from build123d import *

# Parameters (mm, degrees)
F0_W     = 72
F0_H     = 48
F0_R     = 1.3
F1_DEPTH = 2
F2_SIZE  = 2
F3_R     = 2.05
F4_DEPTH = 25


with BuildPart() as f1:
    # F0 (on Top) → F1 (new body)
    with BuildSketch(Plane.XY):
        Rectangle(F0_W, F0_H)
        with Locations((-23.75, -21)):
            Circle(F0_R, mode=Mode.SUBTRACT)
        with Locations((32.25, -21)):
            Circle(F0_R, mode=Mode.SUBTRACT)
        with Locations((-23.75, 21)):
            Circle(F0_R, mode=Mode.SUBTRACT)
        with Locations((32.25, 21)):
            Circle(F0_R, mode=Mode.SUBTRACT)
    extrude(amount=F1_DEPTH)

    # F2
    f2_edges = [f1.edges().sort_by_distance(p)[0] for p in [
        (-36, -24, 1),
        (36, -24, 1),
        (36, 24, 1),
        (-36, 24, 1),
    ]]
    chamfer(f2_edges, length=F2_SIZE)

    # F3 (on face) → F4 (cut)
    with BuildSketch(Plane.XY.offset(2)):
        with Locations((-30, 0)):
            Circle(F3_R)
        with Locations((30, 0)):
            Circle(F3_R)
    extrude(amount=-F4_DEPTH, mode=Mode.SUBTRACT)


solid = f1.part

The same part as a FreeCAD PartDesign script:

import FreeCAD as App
import Part
import Sketcher


def edges_at(feature, points):
    """Names of the edges that pass closest to the given points."""
    edges = feature.Shape.Edges
    near = lambda p: min(range(len(edges)), key=lambda i: edges[i].distToShape(Part.Vertex(*p))[0])
    return sorted({f"Edge{near(p) + 1}" for p in points})


def add_polygon(sketch, points):
    """Adds a closed chain of lines whose ends are joined by coincident constraints."""
    first, n = sketch.GeometryCount, len(points)
    for a, b in zip(points, points[1:] + points[:1]):
        sketch.addGeometry(Part.LineSegment(App.Vector(*a, 0), App.Vector(*b, 0)), False)
    for i in range(n):
        sketch.addConstraint(Sketcher.Constraint("Coincident", first + i, 2, first + (i + 1) % n, 1))

doc = App.newDocument("Part")
params = doc.addObject("Spreadsheet::Sheet", "Params")
for row, (alias, value) in enumerate([
    ("sketch1_diameter", "2.6 mm"),
    ("sketch1_width", "72 mm"),
    ("sketch1_height", "48 mm"),
    ("pad1_length", "2 mm"),
    ("chamfer_size", "2 mm"),
    ("sketch2_diameter", "4.1 mm"),
    ("pocket1_length", "25 mm"),
], start=1):
    params.set(f"A{row}", alias)
    params.set(f"B{row}", "=" + value)
    params.setAlias(f"B{row}", alias)

body = doc.addObject("PartDesign::Body", "Body")

# Sketch on XY plane
sketch1 = body.newObject("Sketcher::SketchObject", "Sketch")
sketch1.AttachmentSupport = (doc.getObject("XY_Plane"), [""])
sketch1.MapMode = "FlatFace"
add_polygon(sketch1, [(-36, 24), (-36, -24), (36, -24), (36, 24)])  # lines 0-3
sketch1.addGeometry(Part.Circle(App.Vector(-23.75, -21, 0), App.Vector(0, 0, 1), 1.3), False)  # 4
sketch1.addGeometry(Part.Circle(App.Vector(32.25, -21, 0), App.Vector(0, 0, 1), 1.3), False)  # 5
sketch1.addGeometry(Part.Circle(App.Vector(-23.75, 21, 0), App.Vector(0, 0, 1), 1.3), False)  # 6
sketch1.addGeometry(Part.Circle(App.Vector(32.25, 21, 0), App.Vector(0, 0, 1), 1.3), False)  # 7
sketch1.addConstraint(Sketcher.Constraint("Vertical", 0))
sketch1.addConstraint(Sketcher.Constraint("Horizontal", 1))
sketch1.addConstraint(Sketcher.Constraint("Vertical", 2))
sketch1.addConstraint(Sketcher.Constraint("Horizontal", 3))
sketch1.addConstraint(Sketcher.Constraint("Equal", 4, 5))
sketch1.addConstraint(Sketcher.Constraint("Equal", 5, 6))
sketch1.addConstraint(Sketcher.Constraint("Equal", 6, 7))
sketch1.addConstraint(Sketcher.Constraint("Symmetric", 0, 2, 2, 2, -1, 1))
sketch1.addConstraint(Sketcher.Constraint("Symmetric", 4, 3, 6, 3, -1))
sketch1.addConstraint(Sketcher.Constraint("Symmetric", 5, 3, 7, 3, -1))
sketch1.addConstraint(Sketcher.Constraint("Horizontal", 4, 3, 5, 3))
sketch1.addConstraint(Sketcher.Constraint("Diameter", 4, 2.6))
sketch1.addConstraint(Sketcher.Constraint("DistanceX", 1, 1, 1, 2, 72.0))
sketch1.addConstraint(Sketcher.Constraint("DistanceY", 0, 2, 0, 1, 48.0))
sketch1.addConstraint(Sketcher.Constraint("DistanceY", 4, 3, -1, 1, 21.0))
sketch1.addConstraint(Sketcher.Constraint("DistanceX", 4, 3, 5, 3, 56.0))
sketch1.addConstraint(Sketcher.Constraint("DistanceX", 4, 3, -1, 1, 23.75))
sketch1.setExpression("Constraints[15]", "Params.sketch1_diameter")
sketch1.setExpression("Constraints[16]", "Params.sketch1_width")
sketch1.setExpression("Constraints[17]", "Params.sketch1_height")
pad1 = body.newObject("PartDesign::Pad", "Pad")
pad1.Profile = sketch1
pad1.setExpression("Length", "Params.pad1_length")
doc.recompute()

chamfer = body.newObject("PartDesign::Chamfer", "Chamfer")
chamfer.Base = (pad1, edges_at(pad1, [
    (-36, -24, 1),
    (36, -24, 1),
    (36, 24, 1),
    (-36, 24, 1),
]))
chamfer.setExpression("Size", "Params.chamfer_size")

# Sketch on XY plane
sketch2 = body.newObject("Sketcher::SketchObject", "Sketch001")
sketch2.AttachmentSupport = (doc.getObject("XY_Plane"), [""])
sketch2.MapMode = "FlatFace"
sketch2.AttachmentOffset = App.Placement(App.Vector(0, 0, 2), App.Rotation())
sketch2.addGeometry(Part.Circle(App.Vector(-30, 0, 0), App.Vector(0, 0, 1), 2.05), False)
sketch2.addGeometry(Part.Circle(App.Vector(30, 0, 0), App.Vector(0, 0, 1), 2.05), False)
sketch2.addConstraint(Sketcher.Constraint("Equal", 0, 1))
sketch2.addConstraint(Sketcher.Constraint("Symmetric", 0, 3, 1, 3, -1, 1))
sketch2.addConstraint(Sketcher.Constraint("PointOnObject", 0, 3, -1))
sketch2.addConstraint(Sketcher.Constraint("Diameter", 0, 4.1))
sketch2.addConstraint(Sketcher.Constraint("DistanceX", 0, 3, -1, 1, 30.0))
sketch2.setExpression("Constraints[3]", "Params.sketch2_diameter")
pocket1 = body.newObject("PartDesign::Pocket", "Pocket")
pocket1.Profile = sketch2
pocket1.setExpression("Length", "Params.pocket1_length")

doc.recompute()
